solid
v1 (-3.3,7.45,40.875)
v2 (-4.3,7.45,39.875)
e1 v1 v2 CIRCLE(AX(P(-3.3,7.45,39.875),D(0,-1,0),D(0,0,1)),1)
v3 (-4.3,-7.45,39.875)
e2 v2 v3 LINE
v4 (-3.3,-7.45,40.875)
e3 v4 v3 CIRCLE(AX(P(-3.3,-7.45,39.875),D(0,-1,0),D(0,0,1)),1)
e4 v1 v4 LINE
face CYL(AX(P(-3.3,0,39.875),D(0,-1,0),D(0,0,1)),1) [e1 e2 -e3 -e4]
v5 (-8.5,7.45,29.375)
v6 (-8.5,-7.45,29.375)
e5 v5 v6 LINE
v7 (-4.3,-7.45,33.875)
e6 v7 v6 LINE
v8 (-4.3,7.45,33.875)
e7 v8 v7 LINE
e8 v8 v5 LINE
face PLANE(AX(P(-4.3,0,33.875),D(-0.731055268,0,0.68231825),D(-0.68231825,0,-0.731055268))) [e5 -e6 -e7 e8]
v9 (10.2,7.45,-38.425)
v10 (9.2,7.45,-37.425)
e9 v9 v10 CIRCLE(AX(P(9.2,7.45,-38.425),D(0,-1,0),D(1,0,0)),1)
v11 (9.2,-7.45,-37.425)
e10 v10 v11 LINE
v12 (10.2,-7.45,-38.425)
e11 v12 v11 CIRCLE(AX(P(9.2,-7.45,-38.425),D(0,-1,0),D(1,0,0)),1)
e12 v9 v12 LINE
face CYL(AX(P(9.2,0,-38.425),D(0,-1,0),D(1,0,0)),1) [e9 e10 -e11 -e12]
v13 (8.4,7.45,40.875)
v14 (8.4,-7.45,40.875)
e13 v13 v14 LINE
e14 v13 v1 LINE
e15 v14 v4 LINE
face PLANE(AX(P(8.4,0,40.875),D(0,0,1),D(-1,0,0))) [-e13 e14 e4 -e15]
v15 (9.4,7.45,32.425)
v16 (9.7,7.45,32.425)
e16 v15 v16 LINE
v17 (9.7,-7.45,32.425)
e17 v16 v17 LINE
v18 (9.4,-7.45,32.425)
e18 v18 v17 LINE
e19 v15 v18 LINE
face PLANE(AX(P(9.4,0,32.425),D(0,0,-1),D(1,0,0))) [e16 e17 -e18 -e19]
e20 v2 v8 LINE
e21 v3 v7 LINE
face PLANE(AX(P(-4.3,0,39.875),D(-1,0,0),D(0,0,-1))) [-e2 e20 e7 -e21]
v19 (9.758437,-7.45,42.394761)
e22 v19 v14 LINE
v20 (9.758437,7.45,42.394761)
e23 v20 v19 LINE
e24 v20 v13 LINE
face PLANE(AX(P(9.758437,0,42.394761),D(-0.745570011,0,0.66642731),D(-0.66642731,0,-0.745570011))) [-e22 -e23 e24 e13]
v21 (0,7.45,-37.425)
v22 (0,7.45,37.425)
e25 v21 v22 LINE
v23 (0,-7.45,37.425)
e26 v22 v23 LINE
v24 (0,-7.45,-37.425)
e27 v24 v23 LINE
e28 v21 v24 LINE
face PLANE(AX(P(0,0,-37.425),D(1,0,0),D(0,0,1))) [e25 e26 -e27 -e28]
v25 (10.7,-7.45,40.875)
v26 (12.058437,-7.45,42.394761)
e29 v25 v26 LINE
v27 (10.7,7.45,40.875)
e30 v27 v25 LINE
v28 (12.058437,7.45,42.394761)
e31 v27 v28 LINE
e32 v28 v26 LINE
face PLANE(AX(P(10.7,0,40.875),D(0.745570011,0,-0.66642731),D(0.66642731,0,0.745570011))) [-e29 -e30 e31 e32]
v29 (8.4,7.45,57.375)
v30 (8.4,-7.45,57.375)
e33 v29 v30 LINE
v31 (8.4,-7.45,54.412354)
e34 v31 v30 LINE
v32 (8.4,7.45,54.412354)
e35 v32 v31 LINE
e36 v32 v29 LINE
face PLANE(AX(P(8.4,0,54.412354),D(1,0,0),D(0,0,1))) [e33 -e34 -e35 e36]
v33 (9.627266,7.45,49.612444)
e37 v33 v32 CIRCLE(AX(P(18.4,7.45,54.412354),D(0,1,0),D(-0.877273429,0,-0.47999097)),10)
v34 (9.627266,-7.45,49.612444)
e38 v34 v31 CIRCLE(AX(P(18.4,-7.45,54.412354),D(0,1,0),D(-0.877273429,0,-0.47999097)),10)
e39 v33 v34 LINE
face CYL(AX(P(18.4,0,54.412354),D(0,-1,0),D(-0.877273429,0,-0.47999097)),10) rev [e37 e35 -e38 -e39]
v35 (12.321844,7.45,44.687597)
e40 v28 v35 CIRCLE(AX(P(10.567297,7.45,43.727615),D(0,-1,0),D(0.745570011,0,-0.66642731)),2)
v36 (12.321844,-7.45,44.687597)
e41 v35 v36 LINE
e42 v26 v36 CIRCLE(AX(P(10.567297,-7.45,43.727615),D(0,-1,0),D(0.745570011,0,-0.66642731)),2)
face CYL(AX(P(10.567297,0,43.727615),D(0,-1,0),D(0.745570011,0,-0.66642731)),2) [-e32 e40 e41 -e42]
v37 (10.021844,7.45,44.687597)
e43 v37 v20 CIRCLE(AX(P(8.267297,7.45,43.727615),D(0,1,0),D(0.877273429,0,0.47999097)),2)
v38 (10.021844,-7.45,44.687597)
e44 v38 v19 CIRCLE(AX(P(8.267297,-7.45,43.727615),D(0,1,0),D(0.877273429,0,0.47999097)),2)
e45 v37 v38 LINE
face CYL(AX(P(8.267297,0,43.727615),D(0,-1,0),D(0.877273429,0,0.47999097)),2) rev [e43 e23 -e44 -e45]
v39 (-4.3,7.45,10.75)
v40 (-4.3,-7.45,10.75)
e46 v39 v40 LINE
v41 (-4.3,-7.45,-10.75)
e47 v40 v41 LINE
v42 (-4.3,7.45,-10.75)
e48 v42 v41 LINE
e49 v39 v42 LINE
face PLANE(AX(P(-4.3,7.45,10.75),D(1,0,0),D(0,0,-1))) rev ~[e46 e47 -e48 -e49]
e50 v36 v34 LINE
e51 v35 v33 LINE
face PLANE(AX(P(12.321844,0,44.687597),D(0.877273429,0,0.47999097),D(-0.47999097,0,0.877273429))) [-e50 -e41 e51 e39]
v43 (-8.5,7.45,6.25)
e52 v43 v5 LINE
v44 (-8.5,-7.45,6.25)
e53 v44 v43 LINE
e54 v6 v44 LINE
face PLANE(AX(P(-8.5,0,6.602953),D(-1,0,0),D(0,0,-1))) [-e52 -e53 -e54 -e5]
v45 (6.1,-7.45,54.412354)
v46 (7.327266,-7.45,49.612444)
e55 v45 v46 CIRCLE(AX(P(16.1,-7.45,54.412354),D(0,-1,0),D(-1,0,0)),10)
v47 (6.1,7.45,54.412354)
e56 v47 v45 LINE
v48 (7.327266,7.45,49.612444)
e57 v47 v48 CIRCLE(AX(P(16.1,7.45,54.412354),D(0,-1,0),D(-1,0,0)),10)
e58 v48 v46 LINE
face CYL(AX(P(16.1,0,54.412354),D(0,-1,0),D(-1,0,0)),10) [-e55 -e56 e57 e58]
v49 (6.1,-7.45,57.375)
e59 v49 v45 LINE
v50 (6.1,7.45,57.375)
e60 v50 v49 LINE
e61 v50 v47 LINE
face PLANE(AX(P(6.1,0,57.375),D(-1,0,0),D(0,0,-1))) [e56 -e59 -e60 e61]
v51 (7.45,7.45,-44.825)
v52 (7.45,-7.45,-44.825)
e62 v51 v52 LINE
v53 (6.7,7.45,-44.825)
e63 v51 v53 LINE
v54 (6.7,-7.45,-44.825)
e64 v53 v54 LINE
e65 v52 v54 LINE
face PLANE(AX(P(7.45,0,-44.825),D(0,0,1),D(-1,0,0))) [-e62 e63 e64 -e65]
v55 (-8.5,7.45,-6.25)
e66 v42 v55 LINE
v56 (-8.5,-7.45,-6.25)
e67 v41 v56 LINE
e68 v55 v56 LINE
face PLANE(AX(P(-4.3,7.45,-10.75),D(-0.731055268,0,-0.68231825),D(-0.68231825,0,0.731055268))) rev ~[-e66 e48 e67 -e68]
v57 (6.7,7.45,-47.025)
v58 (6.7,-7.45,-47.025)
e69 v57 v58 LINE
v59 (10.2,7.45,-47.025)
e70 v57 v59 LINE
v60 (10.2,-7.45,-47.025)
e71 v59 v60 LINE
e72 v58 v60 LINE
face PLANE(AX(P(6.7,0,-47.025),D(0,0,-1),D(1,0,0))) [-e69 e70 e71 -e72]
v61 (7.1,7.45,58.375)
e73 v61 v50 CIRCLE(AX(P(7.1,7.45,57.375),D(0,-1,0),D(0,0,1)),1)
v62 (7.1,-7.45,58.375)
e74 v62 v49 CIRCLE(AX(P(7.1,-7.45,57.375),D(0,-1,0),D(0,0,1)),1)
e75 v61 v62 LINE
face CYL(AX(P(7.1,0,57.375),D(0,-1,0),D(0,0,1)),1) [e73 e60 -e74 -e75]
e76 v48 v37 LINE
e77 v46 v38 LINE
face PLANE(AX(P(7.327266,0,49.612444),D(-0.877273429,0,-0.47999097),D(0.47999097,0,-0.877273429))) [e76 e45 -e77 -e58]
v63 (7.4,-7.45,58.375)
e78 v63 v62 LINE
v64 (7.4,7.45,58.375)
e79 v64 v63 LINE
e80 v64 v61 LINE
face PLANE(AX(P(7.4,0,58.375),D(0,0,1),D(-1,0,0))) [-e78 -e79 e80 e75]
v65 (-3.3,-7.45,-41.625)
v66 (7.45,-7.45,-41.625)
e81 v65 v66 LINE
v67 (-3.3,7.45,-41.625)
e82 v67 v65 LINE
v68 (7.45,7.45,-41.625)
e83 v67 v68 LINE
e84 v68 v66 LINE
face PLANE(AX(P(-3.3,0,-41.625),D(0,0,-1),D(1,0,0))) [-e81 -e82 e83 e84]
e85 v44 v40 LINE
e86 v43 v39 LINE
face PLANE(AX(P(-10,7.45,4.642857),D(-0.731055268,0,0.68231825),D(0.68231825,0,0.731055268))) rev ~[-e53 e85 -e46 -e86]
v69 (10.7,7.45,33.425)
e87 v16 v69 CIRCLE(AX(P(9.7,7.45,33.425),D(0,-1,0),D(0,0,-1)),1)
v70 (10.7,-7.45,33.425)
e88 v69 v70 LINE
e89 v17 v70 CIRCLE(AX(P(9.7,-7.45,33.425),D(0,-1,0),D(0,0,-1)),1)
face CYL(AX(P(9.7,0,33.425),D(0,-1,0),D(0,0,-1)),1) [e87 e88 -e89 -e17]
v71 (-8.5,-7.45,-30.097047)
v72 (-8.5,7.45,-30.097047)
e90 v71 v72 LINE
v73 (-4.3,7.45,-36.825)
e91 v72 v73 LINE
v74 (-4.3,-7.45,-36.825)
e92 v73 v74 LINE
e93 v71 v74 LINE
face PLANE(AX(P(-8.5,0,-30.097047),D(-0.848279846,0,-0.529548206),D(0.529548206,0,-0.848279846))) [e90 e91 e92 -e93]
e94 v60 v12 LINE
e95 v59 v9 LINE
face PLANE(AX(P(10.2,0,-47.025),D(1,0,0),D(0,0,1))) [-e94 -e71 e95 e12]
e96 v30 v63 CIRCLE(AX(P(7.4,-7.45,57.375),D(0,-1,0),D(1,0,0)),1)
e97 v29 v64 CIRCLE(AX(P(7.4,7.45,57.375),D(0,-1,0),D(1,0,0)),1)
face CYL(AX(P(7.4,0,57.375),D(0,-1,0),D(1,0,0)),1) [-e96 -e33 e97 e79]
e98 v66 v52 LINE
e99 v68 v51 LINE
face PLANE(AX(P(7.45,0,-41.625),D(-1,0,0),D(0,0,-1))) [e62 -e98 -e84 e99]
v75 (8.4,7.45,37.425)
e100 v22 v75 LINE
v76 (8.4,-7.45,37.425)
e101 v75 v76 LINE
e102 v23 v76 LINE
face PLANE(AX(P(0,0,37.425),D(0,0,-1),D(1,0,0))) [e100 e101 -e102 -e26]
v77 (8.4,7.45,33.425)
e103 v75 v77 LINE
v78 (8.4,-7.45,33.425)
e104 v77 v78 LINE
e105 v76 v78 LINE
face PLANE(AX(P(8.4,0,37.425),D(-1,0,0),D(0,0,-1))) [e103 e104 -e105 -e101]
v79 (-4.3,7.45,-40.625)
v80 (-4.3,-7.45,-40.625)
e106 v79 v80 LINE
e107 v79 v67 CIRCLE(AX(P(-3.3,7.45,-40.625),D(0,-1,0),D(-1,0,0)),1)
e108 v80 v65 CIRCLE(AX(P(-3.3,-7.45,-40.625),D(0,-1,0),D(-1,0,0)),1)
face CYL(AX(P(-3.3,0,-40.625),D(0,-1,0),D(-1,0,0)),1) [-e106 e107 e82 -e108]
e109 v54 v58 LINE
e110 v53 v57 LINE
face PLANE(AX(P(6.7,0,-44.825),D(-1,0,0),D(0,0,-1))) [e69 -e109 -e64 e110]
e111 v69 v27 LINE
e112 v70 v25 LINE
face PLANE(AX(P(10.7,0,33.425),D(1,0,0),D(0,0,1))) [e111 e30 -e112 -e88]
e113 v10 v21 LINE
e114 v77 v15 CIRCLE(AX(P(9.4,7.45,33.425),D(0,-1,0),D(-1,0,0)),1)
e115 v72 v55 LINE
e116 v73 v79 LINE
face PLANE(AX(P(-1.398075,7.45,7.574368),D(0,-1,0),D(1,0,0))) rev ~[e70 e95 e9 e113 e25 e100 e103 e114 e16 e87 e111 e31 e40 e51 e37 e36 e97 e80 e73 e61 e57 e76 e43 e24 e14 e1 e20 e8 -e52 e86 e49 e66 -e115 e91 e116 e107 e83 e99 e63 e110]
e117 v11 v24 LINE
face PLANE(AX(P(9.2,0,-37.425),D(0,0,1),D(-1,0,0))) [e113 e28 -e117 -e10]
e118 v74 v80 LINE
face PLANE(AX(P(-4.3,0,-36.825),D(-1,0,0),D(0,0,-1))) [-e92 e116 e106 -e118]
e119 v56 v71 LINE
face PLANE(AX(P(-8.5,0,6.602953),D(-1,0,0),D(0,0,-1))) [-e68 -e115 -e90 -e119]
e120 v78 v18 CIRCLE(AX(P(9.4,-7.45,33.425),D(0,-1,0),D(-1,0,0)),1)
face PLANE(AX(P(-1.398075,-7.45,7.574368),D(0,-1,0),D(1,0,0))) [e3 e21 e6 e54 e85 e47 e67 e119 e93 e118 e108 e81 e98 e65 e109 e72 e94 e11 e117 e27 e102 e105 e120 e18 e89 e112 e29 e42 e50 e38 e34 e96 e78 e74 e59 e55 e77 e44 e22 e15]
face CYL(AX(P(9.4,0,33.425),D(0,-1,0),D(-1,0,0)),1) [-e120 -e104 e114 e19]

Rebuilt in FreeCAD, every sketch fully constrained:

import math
import FreeCAD as App
import Part
import Sketcher
from FreeCAD import Vector

doc = App.newDocument("Part")
body = doc.addObject("PartDesign::Body", "Body")

# Sketch on XZ plane
sketch1 = body.newObject("Sketcher::SketchObject", "Sketch")
sketch1.AttachmentSupport = (doc.getObject("XZ_Plane"), [""])
sketch1.MapMode = "FlatFace"
sketch1.addGeometry([
    Part.LineSegment(Vector(-8.5, -30.1, 0), Vector(-4.3, -36.83, 0)),  # 0
    Part.LineSegment(Vector(-4.3, -36.83, 0), Vector(-4.3, -40.62, 0)),  # 1
    Part.ArcOfCircle(Part.Circle(Vector(-3.3, -40.62, 0), Vector(0, 0, 1), 1), math.radians(180), math.radians(270)),  # 2
    Part.LineSegment(Vector(-3.3, -41.62, 0), Vector(7.45, -41.62, 0)),  # 3
    Part.LineSegment(Vector(7.45, -41.62, 0), Vector(7.45, -44.83, 0)),  # 4
    Part.LineSegment(Vector(7.45, -44.83, 0), Vector(6.7, -44.83, 0)),  # 5
    Part.LineSegment(Vector(6.7, -44.83, 0), Vector(6.7, -47.02, 0)),  # 6
    Part.LineSegment(Vector(6.7, -47.02, 0), Vector(10.2, -47.02, 0)),  # 7
    Part.LineSegment(Vector(10.2, -47.02, 0), Vector(10.2, -38.42, 0)),  # 8
    Part.ArcOfCircle(Part.Circle(Vector(9.2, -38.42, 0), Vector(0, 0, 1), 1), math.radians(0), math.radians(90)),  # 9
    Part.LineSegment(Vector(9.2, -37.42, 0), Vector(0, -37.42, 0)),  # 10
    Part.LineSegment(Vector(0, -37.42, 0), Vector(0, 37.42, 0)),  # 11
    Part.LineSegment(Vector(0, 37.42, 0), Vector(8.4, 37.42, 0)),  # 12
    Part.LineSegment(Vector(8.4, 37.42, 0), Vector(8.4, 33.42, 0)),  # 13
    Part.ArcOfCircle(Part.Circle(Vector(9.4, 33.42, 0), Vector(0, 0, 1), 1), math.radians(180), math.radians(270)),  # 14
    Part.LineSegment(Vector(9.4, 32.42, 0), Vector(9.7, 32.42, 0)),  # 15
    Part.ArcOfCircle(Part.Circle(Vector(9.7, 33.42, 0), Vector(0, 0, 1), 1), math.radians(-90), math.radians(0)),  # 16
    Part.LineSegment(Vector(10.7, 33.42, 0), Vector(10.7, 40.88, 0)),  # 17
    Part.LineSegment(Vector(10.7, 40.88, 0), Vector(12.06, 42.39, 0)),  # 18
    Part.ArcOfCircle(Part.Circle(Vector(10.57, 43.73, 0), Vector(0, 0, 1), 2), math.radians(-42), math.radians(29)),  # 19
    Part.LineSegment(Vector(12.32, 44.69, 0), Vector(9.63, 49.61, 0)),  # 20
    Part.ArcOfCircle(Part.Circle(Vector(18.4, 54.41, 0), Vector(0, 0, 1), 10), math.radians(-180), math.radians(-151)),  # 21
    Part.LineSegment(Vector(8.4, 54.41, 0), Vector(8.4, 57.38, 0)),  # 22
    Part.ArcOfCircle(Part.Circle(Vector(7.4, 57.38, 0), Vector(0, 0, 1), 1), math.radians(0), math.radians(90)),  # 23
    Part.LineSegment(Vector(7.4, 58.38, 0), Vector(7.1, 58.38, 0)),  # 24
    Part.ArcOfCircle(Part.Circle(Vector(7.1, 57.38, 0), Vector(0, 0, 1), 1), math.radians(90), math.radians(180)),  # 25
    Part.LineSegment(Vector(6.1, 57.38, 0), Vector(6.1, 54.41, 0)),  # 26
    Part.ArcOfCircle(Part.Circle(Vector(16.1, 54.41, 0), Vector(0, 0, 1), 10), math.radians(-180), math.radians(-151)),  # 27
    Part.LineSegment(Vector(7.33, 49.61, 0), Vector(10.02, 44.69, 0)),  # 28
    Part.ArcOfCircle(Part.Circle(Vector(8.27, 43.73, 0), Vector(0, 0, 1), 2), math.radians(-42), math.radians(29)),  # 29
    Part.LineSegment(Vector(9.76, 42.39, 0), Vector(8.4, 40.88, 0)),  # 30
    Part.LineSegment(Vector(8.4, 40.88, 0), Vector(-3.3, 40.88, 0)),  # 31
    Part.ArcOfCircle(Part.Circle(Vector(-3.3, 39.88, 0), Vector(0, 0, 1), 1), math.radians(90), math.radians(180)),  # 32
    Part.LineSegment(Vector(-4.3, 39.88, 0), Vector(-4.3, 33.88, 0)),  # 33
    Part.LineSegment(Vector(-4.3, 33.88, 0), Vector(-8.5, 29.38, 0)),  # 34
    Part.LineSegment(Vector(-8.5, 29.38, 0), Vector(-8.5, 20.07, 0)),  # 35
    Part.LineSegment(Vector(-8.5, 20.07, 0), Vector(-13.95, 20.07, 0)),  # 36
    Part.LineSegment(Vector(-13.95, 20.07, 0), Vector(-13.95, 29.38, 0)),  # 37
    Part.LineSegment(Vector(-13.95, 29.38, 0), Vector(-16.45, 29.38, 0)),  # 38
    Part.ArcOfCircle(Part.Circle(Vector(-16.45, 27.38, 0), Vector(0, 0, 1), 2), math.radians(90), math.radians(180)),  # 39
    Part.LineSegment(Vector(-18.45, 27.38, 0), Vector(-18.45, 13.88, 0)),  # 40
    Part.LineSegment(Vector(-18.45, 13.88, 0), Vector(-8.5, 6.6, 0)),  # 41
    Part.LineSegment(Vector(-8.5, 6.6, 0), Vector(-8.5, -30.1, 0)),  # 42
], False)
sketch1.addConstraint([
    Sketcher.Constraint("Coincident", 0, 2, 1, 1),
    Sketcher.Constraint("Tangent", 1, 2, 2, 1),
    Sketcher.Constraint("Tangent", 2, 2, 3, 1),
    Sketcher.Constraint("Coincident", 3, 2, 4, 1),
    Sketcher.Constraint("Coincident", 4, 2, 5, 1),
    Sketcher.Constraint("Coincident", 5, 2, 6, 1),
    Sketcher.Constraint("Coincident", 6, 2, 7, 1),
    Sketcher.Constraint("Coincident", 7, 2, 8, 1),
    Sketcher.Constraint("Tangent", 8, 2, 9, 1),
    Sketcher.Constraint("Tangent", 9, 2, 10, 1),
    Sketcher.Constraint("Coincident", 10, 2, 11, 1),
    Sketcher.Constraint("Coincident", 11, 2, 12, 1),
    Sketcher.Constraint("Coincident", 12, 2, 13, 1),
    Sketcher.Constraint("Tangent", 13, 2, 14, 1),
    Sketcher.Constraint("Tangent", 14, 2, 15, 1),
    Sketcher.Constraint("Tangent", 15, 2, 16, 1),
    Sketcher.Constraint("Tangent", 16, 2, 17, 1),
    Sketcher.Constraint("Coincident", 17, 2, 18, 1),
    Sketcher.Constraint("Tangent", 18, 2, 19, 1),
    Sketcher.Constraint("Tangent", 19, 2, 20, 1),
    Sketcher.Constraint("Tangent", 20, 2, 21, 2),
    Sketcher.Constraint("Tangent", 21, 1, 22, 1),
    Sketcher.Constraint("Tangent", 22, 2, 23, 1),
    Sketcher.Constraint("Tangent", 23, 2, 24, 1),
    Sketcher.Constraint("Tangent", 24, 2, 25, 1),
    Sketcher.Constraint("Tangent", 25, 2, 26, 1),
    Sketcher.Constraint("Tangent", 26, 2, 27, 1),
    Sketcher.Constraint("Tangent", 27, 2, 28, 1),
    Sketcher.Constraint("Tangent", 28, 2, 29, 2),
    Sketcher.Constraint("Tangent", 29, 1, 30, 1),
    Sketcher.Constraint("Coincident", 30, 2, 31, 1),
    Sketcher.Constraint("Tangent", 31, 2, 32, 1),
    Sketcher.Constraint("Tangent", 32, 2, 33, 1),
    Sketcher.Constraint("Coincident", 33, 2, 34, 1),
    Sketcher.Constraint("Coincident", 34, 2, 35, 1),
    Sketcher.Constraint("Coincident", 35, 2, 36, 1),
    Sketcher.Constraint("Coincident", 36, 2, 37, 1),
    Sketcher.Constraint("Coincident", 37, 2, 38, 1),
    Sketcher.Constraint("Tangent", 38, 2, 39, 1),
    Sketcher.Constraint("Tangent", 39, 2, 40, 1),
    Sketcher.Constraint("Coincident", 40, 2, 41, 1),
    Sketcher.Constraint("Coincident", 41, 2, 42, 1),
    Sketcher.Constraint("Coincident", 42, 2, 0, 1),
    Sketcher.Constraint("Vertical", 1),
    Sketcher.Constraint("Horizontal", 3),
    Sketcher.Constraint("Vertical", 4),
    Sketcher.Constraint("Horizontal", 5),
    Sketcher.Constraint("Vertical", 6),
    Sketcher.Constraint("Horizontal", 7),
    Sketcher.Constraint("Vertical", 8),
    Sketcher.Constraint("Horizontal", 10),
    Sketcher.Constraint("Vertical", 11),
    Sketcher.Constraint("Horizontal", 12),
    Sketcher.Constraint("Vertical", 13),
    Sketcher.Constraint("Horizontal", 15),
    Sketcher.Constraint("Vertical", 17),
    Sketcher.Constraint("Vertical", 22),
    Sketcher.Constraint("Horizontal", 24),
    Sketcher.Constraint("Vertical", 26),
    Sketcher.Constraint("Horizontal", 31),
    Sketcher.Constraint("Vertical", 33),
    Sketcher.Constraint("Vertical", 35),
    Sketcher.Constraint("Horizontal", 36),
    Sketcher.Constraint("Vertical", 37),
    Sketcher.Constraint("Horizontal", 38),
    Sketcher.Constraint("Vertical", 40),
    Sketcher.Constraint("Vertical", 42),
    Sketcher.Constraint("Equal", 2, 9),
    Sketcher.Constraint("Equal", 9, 14),
    Sketcher.Constraint("Equal", 14, 16),
    Sketcher.Constraint("Equal", 16, 23),
    Sketcher.Constraint("Equal", 23, 25),
    Sketcher.Constraint("Equal", 21, 27),
    Sketcher.Constraint("Equal", 19, 29),
    Sketcher.Constraint("Equal", 25, 32),
    Sketcher.Constraint("Equal", 29, 39),
    Sketcher.Constraint("Symmetric", 10, 2, 11, 2, -1, 1),
    Sketcher.Constraint("Parallel", 20, 28),
    Sketcher.Constraint("Parallel", 18, 30),
    Sketcher.Constraint("Horizontal", 21, 3, 27, 3),
    Sketcher.Constraint("Horizontal", 19, 3, 29, 3),
    Sketcher.Constraint("Horizontal", 17, 2, 30, 2),
    Sketcher.Constraint("Horizontal", 34, 2, 37, 2),
    Sketcher.Constraint("Vertical", 2, 3, 32, 3),
    Sketcher.Constraint("Vertical", 13, 2, 21, 1),
    Sketcher.Constraint("Vertical", 22, 2, 30, 2),
    Sketcher.Constraint("Vertical", 35, 2, 41, 2),
    Sketcher.Constraint("Radius", 2, 1.0),
    Sketcher.Constraint("Radius", 19, 2.0),
    Sketcher.Constraint("Radius", 21, 10.0),
    Sketcher.Constraint("DistanceY", 13, 2, 13, 1, 4.0),
    Sketcher.Constraint("DistanceY", 33, 2, 33, 1, 6.0),
    Sketcher.Constraint("DistanceX", 7, 1, 7, 2, 3.5),
    Sketcher.Constraint("DistanceX", 10, 2, 10, 1, 9.2),
    Sketcher.Constraint("DistanceX", 12, 1, 12, 2, 8.4),
    Sketcher.Constraint("DistanceX", 15, 1, 15, 2, 0.3),
    Sketcher.Constraint("DistanceX", 31, 2, 31, 1, 11.7),
    Sketcher.Constraint("DistanceX", 38, 2, 38, 1, 2.5),
    Sketcher.Constraint("DistanceY", 1, 2, 1, 1, 3.8),
    Sketcher.Constraint("DistanceY", 4, 2, 4, 1, 3.2),
    Sketcher.Constraint("DistanceY", 6, 2, 6, 1, 2.2),
    Sketcher.Constraint("DistanceY", 8, 1, 8, 2, 8.6),
    Sketcher.Constraint("DistanceY", 35, 2, 35, 1, 9.3),
    Sketcher.Constraint("DistanceY", 40, 2, 40, 1, 13.5),
    Sketcher.Constraint("DistanceY", 42, 2, 42, 1, 36.7),
    Sketcher.Constraint("DistanceY", 1, 2, 39, 3, 68.0),
    Sketcher.Constraint("DistanceX", 3, 1, 3, 2, 10.75),
    Sketcher.Constraint("DistanceX", 36, 2, 36, 1, 5.45),
    Sketcher.Constraint("DistanceY", 11, 1, 11, 2, 74.85),
    Sketcher.Constraint("DistanceY", 17, 1, 17, 2, 7.45),
    Sketcher.Constraint("DistanceX", 34, 2, -1, 1, 8.5),
    Sketcher.Constraint("DistanceY", 9, 3, 23, 3, 95.8),
    Sketcher.Constraint("Distance", 0, 7.931289),
    Sketcher.Constraint("Distance", 20, 5.613811),
    Sketcher.Constraint("DistanceY", 22, 1, 22, 2, 2.962646),
    Sketcher.Constraint("DistanceY", -1, 1, 18, 2, 42.394761),
])
pad1 = body.newObject("PartDesign::Pad", "Pad")
pad1.Profile = sketch1
pad1.Length = 14.9
pad1.Midplane = True

# Sketch on XZ plane
sketch2 = body.newObject("Sketcher::SketchObject", "Sketch001")
sketch2.AttachmentSupport = (doc.getObject("XZ_Plane"), [""])
sketch2.MapMode = "FlatFace"
sketch2.AttachmentOffset = App.Placement(Vector(0, 0, 7.45), App.Rotation())
sketch2.addGeometry([
    Part.LineSegment(Vector(-18, 29, 0), Vector(-18, -30, 0)),
    Part.LineSegment(Vector(-18, -30, 0), Vector(-8, -30, 0)),
    Part.LineSegment(Vector(-8, -30, 0), Vector(-8, 29, 0)),
    Part.LineSegment(Vector(-8, 29, 0), Vector(-18, 29, 0)),
], False)
sketch2.addConstraint([
    Sketcher.Constraint("Coincident", 0, 2, 1, 1),
    Sketcher.Constraint("Coincident", 1, 2, 2, 1),
    Sketcher.Constraint("Coincident", 2, 2, 3, 1),
    Sketcher.Constraint("Coincident", 3, 2, 0, 1),
    Sketcher.Constraint("Vertical", 0),
    Sketcher.Constraint("Horizontal", 1),
    Sketcher.Constraint("Vertical", 2),
    Sketcher.Constraint("Horizontal", 3),
    Sketcher.Constraint("DistanceX", 1, 1, 1, 2, 9.95),
    Sketcher.Constraint("DistanceX", 1, 2, -1, 1, 8.5),
    Sketcher.Constraint("DistanceY", -1, 1, 2, 2, 29.375),
    Sketcher.Constraint("DistanceY", 0, 2, 0, 1, 59.472047),
])
pocket1 = body.newObject("PartDesign::Pocket", "Pocket")
pocket1.Profile = sketch2
pocket1.Type = "ThroughAll"

# Sketch on XZ plane
sketch3 = body.newObject("Sketcher::SketchObject", "Sketch002")
sketch3.AttachmentSupport = (doc.getObject("XZ_Plane"), [""])
sketch3.MapMode = "FlatFace"
sketch3.AttachmentOffset = App.Placement(Vector(0, 0, -7.45), App.Rotation())
sketch3.addGeometry([
    Part.LineSegment(Vector(-10, -5, 0), Vector(-10, 5, 0)),
    Part.LineSegment(Vector(-10, 5, 0), Vector(-4, 11, 0)),
    Part.LineSegment(Vector(-4, 11, 0), Vector(-4, -11, 0)),
    Part.LineSegment(Vector(-4, -11, 0), Vector(-10, -5, 0)),
], False)
sketch3.addConstraint([
    Sketcher.Constraint("Coincident", 0, 2, 1, 1),
    Sketcher.Constraint("Coincident", 1, 2, 2, 1),
    Sketcher.Constraint("Coincident", 2, 2, 3, 1),
    Sketcher.Constraint("Coincident", 3, 2, 0, 1),
    Sketcher.Constraint("Vertical", 0),
    Sketcher.Constraint("Vertical", 2),
    Sketcher.Constraint("Equal", 1, 3),
    Sketcher.Constraint("DistanceY", 2, 2, 2, 1, 21.5),
    Sketcher.Constraint("DistanceX", 0, 2, -1, 1, 10.0),
    Sketcher.Constraint("DistanceX", 1, 2, -1, 1, 4.3),
    Sketcher.Constraint("DistanceY", -1, 1, 1, 2, 10.75),
    Sketcher.Constraint("DistanceY", 0, 1, 0, 2, 9.285714),
])
pocket2 = body.newObject("PartDesign::Pocket", "Pocket001")
pocket2.Profile = sketch3
pocket2.Type = "ThroughAll"
pocket2.Reversed = True

doc.recompute()
